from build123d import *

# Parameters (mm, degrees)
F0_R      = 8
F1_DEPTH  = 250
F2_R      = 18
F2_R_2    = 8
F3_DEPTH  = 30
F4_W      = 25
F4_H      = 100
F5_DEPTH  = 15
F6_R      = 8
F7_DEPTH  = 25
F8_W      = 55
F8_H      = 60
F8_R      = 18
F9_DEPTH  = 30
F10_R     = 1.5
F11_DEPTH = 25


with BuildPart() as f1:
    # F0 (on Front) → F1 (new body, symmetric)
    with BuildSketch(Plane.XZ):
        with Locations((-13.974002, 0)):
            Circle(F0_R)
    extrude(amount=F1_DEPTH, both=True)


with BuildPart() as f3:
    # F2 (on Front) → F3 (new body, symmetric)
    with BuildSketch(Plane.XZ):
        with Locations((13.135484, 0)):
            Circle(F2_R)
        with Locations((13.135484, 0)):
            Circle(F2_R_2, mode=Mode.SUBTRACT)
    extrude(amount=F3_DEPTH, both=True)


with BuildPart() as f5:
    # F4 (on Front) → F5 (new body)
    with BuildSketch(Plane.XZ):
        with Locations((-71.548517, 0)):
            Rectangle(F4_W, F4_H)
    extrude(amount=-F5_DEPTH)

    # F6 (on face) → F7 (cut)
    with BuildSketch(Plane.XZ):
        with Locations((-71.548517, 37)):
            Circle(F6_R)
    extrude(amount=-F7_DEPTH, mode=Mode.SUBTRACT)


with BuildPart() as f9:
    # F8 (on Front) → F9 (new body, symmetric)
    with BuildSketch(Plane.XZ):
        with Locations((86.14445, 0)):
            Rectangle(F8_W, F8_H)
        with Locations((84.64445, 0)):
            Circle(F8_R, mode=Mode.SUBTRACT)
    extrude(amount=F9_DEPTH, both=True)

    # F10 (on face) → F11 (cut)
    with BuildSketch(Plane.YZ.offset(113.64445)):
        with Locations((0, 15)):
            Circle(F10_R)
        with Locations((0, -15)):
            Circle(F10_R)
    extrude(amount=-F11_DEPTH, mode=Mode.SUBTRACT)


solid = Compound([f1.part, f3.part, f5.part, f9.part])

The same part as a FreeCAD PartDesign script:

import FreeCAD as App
import Part
import Sketcher
from FreeCAD import Vector
Q = App.Units.Quantity


def add_polygon(sketch, points):
    """Adds a closed chain of lines whose ends are joined by coincident constraints."""
    first, n = sketch.GeometryCount, len(points)
    for a, b in zip(points, points[1:] + points[:1]):
        sketch.addGeometry(Part.LineSegment(App.Vector(*a, 0), App.Vector(*b, 0)), False)
    for i in range(n):
        sketch.addConstraint(Sketcher.Constraint("Coincident", first + i, 2, first + (i + 1) % n, 1))

doc = App.newDocument("Part")
body = doc.addObject("PartDesign::Body", "Body")

sketch1 = body.newObject("Sketcher::SketchObject", "Sketch")
sketch1.AttachmentSupport = (doc.getObject("XZ_Plane"), [""])
sketch1.MapMode = "FlatFace"
sketch1.addGeometry(Part.Circle(Vector(-14, 0, 0), Vector(0, 0, 1), 8), False)
sketch1.addConstraint([
    Sketcher.Constraint("PointOnObject", 0, 3, -1),
    Sketcher.Constraint("Diameter", 0, Q("16 mm")),
    Sketcher.Constraint("DistanceX", 0, 3, -1, 1, Q("13.974002 mm")),
])
pad1 = body.newObject("PartDesign::Pad", "Pad")
pad1.Profile = sketch1
pad1.Length = 500
pad1.Midplane = True
body2 = doc.addObject("PartDesign::Body", "Body001")

sketch2 = body2.newObject("Sketcher::SketchObject", "Sketch001")
sketch2.AttachmentSupport = (doc.getObject("XZ_Plane001"), [""])
sketch2.MapMode = "FlatFace"
sketch2.addGeometry([
    Part.Circle(Vector(13, 0, 0), Vector(0, 0, 1), 18),
    Part.Circle(Vector(13, 0, 0), Vector(0, 0, 1), 8),
], False)
sketch2.addConstraint([
    Sketcher.Constraint("Coincident", 1, 3, 0, 3),
    Sketcher.Constraint("PointOnObject", 0, 3, -1),
    Sketcher.Constraint("Diameter", 0, Q("36 mm")),
    Sketcher.Constraint("Diameter", 1, Q("16 mm")),
    Sketcher.Constraint("DistanceX", -1, 1, 0, 3, Q("13.135484 mm")),
])
pad2 = body2.newObject("PartDesign::Pad", "Pad001")
pad2.Profile = sketch2
pad2.Length = 60
pad2.Midplane = True
body3 = doc.addObject("PartDesign::Body", "Body002")

sketch3 = body3.newObject("Sketcher::SketchObject", "Sketch002")
sketch3.AttachmentSupport = (doc.getObject("XZ_Plane002"), [""])
sketch3.MapMode = "FlatFace"
add_polygon(sketch3, [(-84, 50), (-84, -50), (-59, -50), (-59, 50)])
sketch3.addConstraint([
    Sketcher.Constraint("Vertical", 0),
    Sketcher.Constraint("Horizontal", 1),
    Sketcher.Constraint("Vertical", 2),
    Sketcher.Constraint("Horizontal", 3),
    Sketcher.Constraint("DistanceX", 1, 1, 1, 2, Q("25 mm")),
    Sketcher.Constraint("DistanceY", 0, 2, 0, 1, Q("100 mm")),
    Sketcher.Constraint("DistanceY", 0, 2, -1, 1, Q("50 mm")),
    Sketcher.Constraint("DistanceX", 0, 2, -1, 1, Q("84.048517 mm")),
])
pad3 = body3.newObject("PartDesign::Pad", "Pad002")
pad3.Profile = sketch3
pad3.Length = 15
pad3.Reversed = True

sketch4 = body3.newObject("Sketcher::SketchObject", "Sketch003")
sketch4.AttachmentSupport = (doc.getObject("XZ_Plane002"), [""])
sketch4.MapMode = "FlatFace"
sketch4.addGeometry(Part.Circle(Vector(-72, 37, 0), Vector(0, 0, 1), 8), False)
sketch4.addConstraint([
    Sketcher.Constraint("Diameter", 0, Q("16 mm")),
    Sketcher.Constraint("DistanceY", -1, 1, 0, 3, Q("37 mm")),
    Sketcher.Constraint("DistanceX", 0, 3, -1, 1, Q("71.548517 mm")),
])
pocket1 = body3.newObject("PartDesign::Pocket", "Pocket")
pocket1.Profile = sketch4
pocket1.Length = 25
body4 = doc.addObject("PartDesign::Body", "Body003")

sketch5 = body4.newObject("Sketcher::SketchObject", "Sketch004")
sketch5.AttachmentSupport = (doc.getObject("XZ_Plane003"), [""])
sketch5.MapMode = "FlatFace"
add_polygon(sketch5, [(59, 30), (59, -30), (114, -30), (114, 30)])
sketch5.addGeometry(Part.Circle(Vector(85, 0, 0), Vector(0, 0, 1), 18), False)
sketch5.addConstraint([
    Sketcher.Constraint("Vertical", 0),
    Sketcher.Constraint("Horizontal", 1),
    Sketcher.Constraint("Vertical", 2),
    Sketcher.Constraint("Horizontal", 3),
    Sketcher.Constraint("PointOnObject", 4, 3, -1),
    Sketcher.Constraint("Diameter", 4, Q("36 mm")),
    Sketcher.Constraint("DistanceX", 1, 1, 1, 2, Q("55 mm")),
    Sketcher.Constraint("DistanceY", 0, 2, 0, 1, Q("60 mm")),
    Sketcher.Constraint("DistanceY", 0, 2, -1, 1, Q("30 mm")),
    Sketcher.Constraint("DistanceX", 0, 2, 4, 3, Q("26 mm")),
    Sketcher.Constraint("DistanceX", -1, 1, 4, 3, Q("84.64445 mm")),
])
pad4 = body4.newObject("PartDesign::Pad", "Pad003")
pad4.Profile = sketch5
pad4.Length = 60
pad4.Midplane = True

sketch6 = body4.newObject("Sketcher::SketchObject", "Sketch005")
sketch6.AttachmentSupport = (doc.getObject("YZ_Plane003"), [""])
sketch6.MapMode = "FlatFace"
sketch6.AttachmentOffset = App.Placement(Vector(0, 0, 113.64445), App.Rotation())
sketch6.addGeometry([
    Part.Circle(Vector(0, 15, 0), Vector(0, 0, 1), 1.5),
    Part.Circle(Vector(0, -15, 0), Vector(0, 0, 1), 1.5),
], False)
sketch6.addConstraint([
    Sketcher.Constraint("Equal", 0, 1),
    Sketcher.Constraint("Symmetric", 0, 3, 1, 3, -1, 1),
    Sketcher.Constraint("PointOnObject", 0, 3, -2),
    Sketcher.Constraint("Diameter", 0, Q("3 mm")),
    Sketcher.Constraint("DistanceY", -1, 1, 0, 3, Q("15 mm")),
])
pocket2 = body4.newObject("PartDesign::Pocket", "Pocket001")
pocket2.Profile = sketch6
pocket2.Length = 25

doc.recompute()
